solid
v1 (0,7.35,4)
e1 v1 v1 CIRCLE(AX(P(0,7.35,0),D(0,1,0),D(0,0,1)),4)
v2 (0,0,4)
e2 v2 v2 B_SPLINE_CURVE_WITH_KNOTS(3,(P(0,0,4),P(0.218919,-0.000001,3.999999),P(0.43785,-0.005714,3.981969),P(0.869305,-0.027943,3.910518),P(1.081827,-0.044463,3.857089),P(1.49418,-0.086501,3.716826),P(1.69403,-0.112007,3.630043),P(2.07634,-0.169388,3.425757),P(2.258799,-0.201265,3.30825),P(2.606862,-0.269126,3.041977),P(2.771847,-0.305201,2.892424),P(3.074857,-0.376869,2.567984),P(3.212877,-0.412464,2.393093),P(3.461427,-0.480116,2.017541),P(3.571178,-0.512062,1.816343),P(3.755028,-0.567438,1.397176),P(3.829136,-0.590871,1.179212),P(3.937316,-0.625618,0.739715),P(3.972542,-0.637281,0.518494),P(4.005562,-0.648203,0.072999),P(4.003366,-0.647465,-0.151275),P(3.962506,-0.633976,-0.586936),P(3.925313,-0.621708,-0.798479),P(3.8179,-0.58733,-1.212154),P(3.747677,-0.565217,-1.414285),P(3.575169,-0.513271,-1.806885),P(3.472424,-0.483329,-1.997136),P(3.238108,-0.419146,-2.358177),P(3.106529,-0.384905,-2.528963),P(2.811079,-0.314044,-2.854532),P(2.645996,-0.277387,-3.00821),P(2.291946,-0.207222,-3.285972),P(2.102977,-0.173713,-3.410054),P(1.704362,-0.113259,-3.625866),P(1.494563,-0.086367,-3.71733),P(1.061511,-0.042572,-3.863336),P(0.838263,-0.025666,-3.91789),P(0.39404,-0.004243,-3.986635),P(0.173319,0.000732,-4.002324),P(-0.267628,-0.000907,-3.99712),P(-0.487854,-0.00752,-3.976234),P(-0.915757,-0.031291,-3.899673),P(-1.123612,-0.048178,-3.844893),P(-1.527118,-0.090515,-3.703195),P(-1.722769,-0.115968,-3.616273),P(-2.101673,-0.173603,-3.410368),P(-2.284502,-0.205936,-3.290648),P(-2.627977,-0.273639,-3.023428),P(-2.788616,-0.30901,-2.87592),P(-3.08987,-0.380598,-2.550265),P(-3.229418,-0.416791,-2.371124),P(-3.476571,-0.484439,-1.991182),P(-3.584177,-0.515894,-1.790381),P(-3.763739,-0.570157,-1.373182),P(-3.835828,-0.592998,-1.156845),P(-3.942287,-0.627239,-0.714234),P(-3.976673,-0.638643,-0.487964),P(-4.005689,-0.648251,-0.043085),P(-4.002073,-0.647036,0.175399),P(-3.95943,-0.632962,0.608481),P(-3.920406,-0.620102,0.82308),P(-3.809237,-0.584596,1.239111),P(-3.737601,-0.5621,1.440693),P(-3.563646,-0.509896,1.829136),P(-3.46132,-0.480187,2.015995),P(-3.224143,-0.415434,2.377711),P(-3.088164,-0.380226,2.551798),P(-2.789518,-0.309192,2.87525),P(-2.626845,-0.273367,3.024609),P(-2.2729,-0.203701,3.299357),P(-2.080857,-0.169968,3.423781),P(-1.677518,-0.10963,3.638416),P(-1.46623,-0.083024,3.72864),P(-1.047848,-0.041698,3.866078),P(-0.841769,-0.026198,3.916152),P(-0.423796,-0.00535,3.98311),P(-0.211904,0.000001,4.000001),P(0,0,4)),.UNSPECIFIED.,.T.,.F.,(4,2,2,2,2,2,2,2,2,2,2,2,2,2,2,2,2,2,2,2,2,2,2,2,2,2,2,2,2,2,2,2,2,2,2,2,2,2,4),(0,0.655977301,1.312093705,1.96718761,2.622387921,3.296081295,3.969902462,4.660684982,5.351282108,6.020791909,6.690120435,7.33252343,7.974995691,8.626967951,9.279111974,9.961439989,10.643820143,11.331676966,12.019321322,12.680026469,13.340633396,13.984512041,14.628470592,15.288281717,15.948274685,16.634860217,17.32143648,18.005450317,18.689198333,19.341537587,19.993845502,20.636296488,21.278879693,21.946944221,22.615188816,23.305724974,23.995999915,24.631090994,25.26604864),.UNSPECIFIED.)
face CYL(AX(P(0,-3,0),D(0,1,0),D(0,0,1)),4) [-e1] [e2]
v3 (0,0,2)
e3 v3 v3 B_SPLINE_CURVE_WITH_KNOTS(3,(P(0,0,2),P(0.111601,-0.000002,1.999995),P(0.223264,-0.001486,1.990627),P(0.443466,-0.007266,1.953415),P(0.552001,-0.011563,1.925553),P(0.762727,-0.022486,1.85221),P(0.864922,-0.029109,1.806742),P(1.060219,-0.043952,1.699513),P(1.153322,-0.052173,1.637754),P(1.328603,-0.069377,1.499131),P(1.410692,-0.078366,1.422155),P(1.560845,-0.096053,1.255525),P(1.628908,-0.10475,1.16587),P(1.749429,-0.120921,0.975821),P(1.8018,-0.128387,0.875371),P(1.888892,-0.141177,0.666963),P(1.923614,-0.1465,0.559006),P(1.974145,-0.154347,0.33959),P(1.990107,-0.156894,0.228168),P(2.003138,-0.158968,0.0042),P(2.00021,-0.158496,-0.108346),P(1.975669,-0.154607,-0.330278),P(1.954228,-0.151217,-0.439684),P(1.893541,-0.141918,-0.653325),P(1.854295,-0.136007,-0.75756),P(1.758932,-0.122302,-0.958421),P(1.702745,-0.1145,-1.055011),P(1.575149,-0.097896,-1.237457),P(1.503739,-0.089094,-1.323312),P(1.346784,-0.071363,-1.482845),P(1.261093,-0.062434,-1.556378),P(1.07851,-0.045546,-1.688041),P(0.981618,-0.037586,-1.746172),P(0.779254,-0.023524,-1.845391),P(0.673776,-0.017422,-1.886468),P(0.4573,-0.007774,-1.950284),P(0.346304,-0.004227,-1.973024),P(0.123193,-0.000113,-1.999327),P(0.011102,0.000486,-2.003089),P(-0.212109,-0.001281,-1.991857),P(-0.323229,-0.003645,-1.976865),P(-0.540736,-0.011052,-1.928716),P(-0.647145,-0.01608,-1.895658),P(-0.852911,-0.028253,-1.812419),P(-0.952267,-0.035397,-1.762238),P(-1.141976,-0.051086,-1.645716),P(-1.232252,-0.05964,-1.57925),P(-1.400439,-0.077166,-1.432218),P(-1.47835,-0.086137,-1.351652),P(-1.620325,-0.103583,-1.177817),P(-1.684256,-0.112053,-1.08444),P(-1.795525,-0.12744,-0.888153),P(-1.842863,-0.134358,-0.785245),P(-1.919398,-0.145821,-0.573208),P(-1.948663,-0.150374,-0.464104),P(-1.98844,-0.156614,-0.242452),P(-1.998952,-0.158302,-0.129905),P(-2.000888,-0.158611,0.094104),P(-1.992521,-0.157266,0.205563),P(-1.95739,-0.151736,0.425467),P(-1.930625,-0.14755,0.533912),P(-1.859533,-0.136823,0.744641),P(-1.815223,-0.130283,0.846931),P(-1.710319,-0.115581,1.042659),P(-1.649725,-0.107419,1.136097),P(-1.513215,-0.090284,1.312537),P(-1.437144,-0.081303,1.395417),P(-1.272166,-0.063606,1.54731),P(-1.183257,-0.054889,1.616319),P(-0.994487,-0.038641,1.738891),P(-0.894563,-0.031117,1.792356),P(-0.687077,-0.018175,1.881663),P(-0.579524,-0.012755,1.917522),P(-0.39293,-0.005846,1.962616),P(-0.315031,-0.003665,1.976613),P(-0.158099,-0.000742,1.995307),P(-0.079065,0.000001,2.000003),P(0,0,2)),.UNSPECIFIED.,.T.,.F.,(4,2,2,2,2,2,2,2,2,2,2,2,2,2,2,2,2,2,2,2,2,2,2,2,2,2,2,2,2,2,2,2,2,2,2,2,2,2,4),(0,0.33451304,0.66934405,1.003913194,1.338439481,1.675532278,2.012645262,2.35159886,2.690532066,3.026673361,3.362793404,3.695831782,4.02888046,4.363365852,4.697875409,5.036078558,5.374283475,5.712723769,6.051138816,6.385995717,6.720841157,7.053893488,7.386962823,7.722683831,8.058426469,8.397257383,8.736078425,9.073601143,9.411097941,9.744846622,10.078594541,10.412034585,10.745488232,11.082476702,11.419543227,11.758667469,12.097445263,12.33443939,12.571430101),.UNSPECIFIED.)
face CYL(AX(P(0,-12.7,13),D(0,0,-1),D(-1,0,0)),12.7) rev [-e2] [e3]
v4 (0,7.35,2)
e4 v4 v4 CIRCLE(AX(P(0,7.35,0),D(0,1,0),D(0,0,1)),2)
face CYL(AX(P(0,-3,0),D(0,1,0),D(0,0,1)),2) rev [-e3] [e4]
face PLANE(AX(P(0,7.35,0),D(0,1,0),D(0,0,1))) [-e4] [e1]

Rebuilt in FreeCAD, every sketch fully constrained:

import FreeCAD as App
import Part
import Sketcher

V = App.Vector
Q = App.Units.Quantity

doc = App.newDocument("Part")
body = doc.addObject("PartDesign::Body", "Body")

sketch1 = doc.addObject("Sketcher::SketchObject", "Sketch")
body.addObject(sketch1)
sketch1.AttachmentSupport = (doc.XZ_Plane, [""])
sketch1.MapMode = "FlatFace"
sketch1.addGeometry([
    Part.Circle(V(0, 0, 0), V(0, 0, 1), 4),
    Part.Circle(V(0, 0, 0), V(0, 0, 1), 2),
], False)
sketch1.addConstraint([
    Sketcher.Constraint("Coincident", 0, 3, -1, 1),
    Sketcher.Constraint("Coincident", 1, 3, -1, 1),
    Sketcher.Constraint("Diameter", 0, Q("8 mm")),
    Sketcher.Constraint("Diameter", 1, Q("4 mm")),
])
pad1 = doc.addObject("PartDesign::Pad", "Pad")
body.addObject(pad1)
pad1.Profile = sketch1
pad1.Type = "TwoLengths"
pad1.Length = 7.35
pad1.Length2 = 3
pad1.Reversed = True

sketch2 = doc.addObject("Sketcher::SketchObject", "Sketch001")
body.addObject(sketch2)
sketch2.AttachmentSupport = (doc.XY_Plane, [""])
sketch2.MapMode = "FlatFace"
sketch2.addGeometry(Part.Circle(V(0, -13, 0), V(0, 0, 1), 13), False)
sketch2.addConstraint([
    Sketcher.Constraint("PointOnObject", 0, 3, -2),
    Sketcher.Constraint("Diameter", 0, Q("25.4 mm")),
    Sketcher.Constraint("DistanceY", 0, 3, -1, 1, Q("12.7 mm")),
])
pocket1 = doc.addObject("PartDesign::Pocket", "Pocket")
body.addObject(pocket1)
pocket1.Profile = sketch2
pocket1.Type = "ThroughAll"
pocket1.Midplane = True

doc.recompute()
